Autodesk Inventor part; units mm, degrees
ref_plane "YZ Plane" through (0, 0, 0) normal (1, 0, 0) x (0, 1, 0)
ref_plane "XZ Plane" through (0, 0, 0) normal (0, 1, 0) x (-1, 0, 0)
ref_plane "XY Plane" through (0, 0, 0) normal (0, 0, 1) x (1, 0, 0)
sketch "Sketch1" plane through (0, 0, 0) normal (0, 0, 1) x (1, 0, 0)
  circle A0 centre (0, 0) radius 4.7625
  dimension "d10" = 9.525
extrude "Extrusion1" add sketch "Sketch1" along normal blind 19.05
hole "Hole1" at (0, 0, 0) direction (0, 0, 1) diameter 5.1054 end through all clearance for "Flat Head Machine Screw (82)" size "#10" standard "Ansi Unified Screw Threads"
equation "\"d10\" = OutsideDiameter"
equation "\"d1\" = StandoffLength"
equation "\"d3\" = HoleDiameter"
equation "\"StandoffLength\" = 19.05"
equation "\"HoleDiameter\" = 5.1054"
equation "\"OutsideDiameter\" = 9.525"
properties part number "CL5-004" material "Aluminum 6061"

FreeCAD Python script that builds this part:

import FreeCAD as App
import Part
import Sketcher
from FreeCAD import Vector
Q = App.Units.Quantity

doc = App.newDocument("Part")
body = doc.addObject("PartDesign::Body", "Body")

# Sketch on XY plane
sketch1 = doc.addObject("Sketcher::SketchObject", "Sketch")
body.addObject(sketch1)
sketch1.AttachmentSupport = (doc.XY_Plane, [""])
sketch1.MapMode = "FlatFace"
sketch1.addGeometry(Part.Circle(Vector(0, 0, 0), Vector(0, 0, 1), 4.8), False)
sketch1.addConstraint(Sketcher.Constraint("Coincident", 0, 3, -1, 1))
sketch1.addConstraint(Sketcher.Constraint("Diameter", 0, Q("0.375 in")))
pad1 = doc.addObject("PartDesign::Pad", "Pad")
body.addObject(pad1)
pad1.Profile = sketch1
pad1.Length = Q("0.75 in")

# Sketch on XY plane
sketch2 = doc.addObject("Sketcher::SketchObject", "Sketch001")
body.addObject(sketch2)
sketch2.AttachmentSupport = (doc.XY_Plane, [""])
sketch2.MapMode = "FlatFace"
sketch2.addGeometry(Part.Circle(Vector(0, 0, 0), Vector(0, 0, 1), 2.6), False)
sketch2.addConstraint(Sketcher.Constraint("Coincident", 0, 3, -1, 1))
sketch2.addConstraint(Sketcher.Constraint("Diameter", 0, Q("0.201 in")))
doc.recompute()
hole = doc.addObject("PartDesign::Hole", "Hole")
body.addObject(hole)
hole.Profile = sketch2
hole.ThreadType = "None"
hole.Diameter = Q("0.201 in")
hole.DepthType = "ThroughAll"
hole.Reversed = True

doc.recompute()
